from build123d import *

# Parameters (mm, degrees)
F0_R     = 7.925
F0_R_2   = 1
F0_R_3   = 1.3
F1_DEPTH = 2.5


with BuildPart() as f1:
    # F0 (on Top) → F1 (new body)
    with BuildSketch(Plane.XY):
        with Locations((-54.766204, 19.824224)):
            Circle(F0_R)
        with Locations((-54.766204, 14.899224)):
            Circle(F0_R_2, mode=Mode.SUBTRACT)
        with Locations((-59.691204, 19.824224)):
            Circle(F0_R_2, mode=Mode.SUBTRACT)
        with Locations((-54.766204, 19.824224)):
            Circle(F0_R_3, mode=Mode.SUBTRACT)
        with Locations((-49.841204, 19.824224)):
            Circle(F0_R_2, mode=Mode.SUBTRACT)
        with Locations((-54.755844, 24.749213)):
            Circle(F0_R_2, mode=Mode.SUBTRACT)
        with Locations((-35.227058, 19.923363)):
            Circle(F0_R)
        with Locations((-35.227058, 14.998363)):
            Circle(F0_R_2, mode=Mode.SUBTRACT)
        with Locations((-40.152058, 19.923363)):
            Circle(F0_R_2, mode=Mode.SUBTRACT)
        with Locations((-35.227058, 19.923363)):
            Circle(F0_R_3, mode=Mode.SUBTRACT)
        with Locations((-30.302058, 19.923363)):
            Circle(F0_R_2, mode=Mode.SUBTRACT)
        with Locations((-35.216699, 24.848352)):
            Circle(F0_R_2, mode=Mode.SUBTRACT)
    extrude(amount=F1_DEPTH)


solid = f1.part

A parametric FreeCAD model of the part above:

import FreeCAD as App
import Part
import Sketcher
from FreeCAD import Vector
Q = App.Units.Quantity

doc = App.newDocument("Part")
body = doc.addObject("PartDesign::Body", "Body")
body.AllowCompound = True

# Sketch on XY plane
sketch1 = body.newObject("Sketcher::SketchObject", "Sketch")
sketch1.AttachmentSupport = (doc.getObject("XY_Plane"), [""])
sketch1.MapMode = "FlatFace"
sketch1.addGeometry(Part.Circle(Vector(-54.8, 19.8, 0), Vector(0, 0, 1), 7.9), False)
sketch1.addGeometry(Part.Circle(Vector(-54.8, 14.9, 0), Vector(0, 0, 1), 1), False)
sketch1.addGeometry(Part.Circle(Vector(-59.7, 19.8, 0), Vector(0, 0, 1), 1), False)
sketch1.addGeometry(Part.Circle(Vector(-54.8, 19.8, 0), Vector(0, 0, 1), 1.3), False)
sketch1.addGeometry(Part.Circle(Vector(-49.8, 19.8, 0), Vector(0, 0, 1), 1), False)
sketch1.addGeometry(Part.Circle(Vector(-54.8, 24.7, 0), Vector(0, 0, 1), 1), False)
sketch1.addGeometry(Part.Circle(Vector(-35.2, 19.9, 0), Vector(0, 0, 1), 7.9), False)
sketch1.addGeometry(Part.Circle(Vector(-35.2, 15, 0), Vector(0, 0, 1), 1), False)
sketch1.addGeometry(Part.Circle(Vector(-40.2, 19.9, 0), Vector(0, 0, 1), 1), False)
sketch1.addGeometry(Part.Circle(Vector(-35.2, 19.9, 0), Vector(0, 0, 1), 1.3), False)
sketch1.addGeometry(Part.Circle(Vector(-30.3, 19.9, 0), Vector(0, 0, 1), 1), False)
sketch1.addGeometry(Part.Circle(Vector(-35.2, 24.8, 0), Vector(0, 0, 1), 1), False)
sketch1.addConstraint(Sketcher.Constraint("Coincident", 3, 3, 0, 3))
sketch1.addConstraint(Sketcher.Constraint("Coincident", 9, 3, 6, 3))
sketch1.addConstraint(Sketcher.Constraint("Equal", 1, 2))
sketch1.addConstraint(Sketcher.Constraint("Equal", 2, 4))
sketch1.addConstraint(Sketcher.Constraint("Equal", 4, 5))
sketch1.addConstraint(Sketcher.Constraint("Equal", 0, 6))
sketch1.addConstraint(Sketcher.Constraint("Equal", 5, 7))
sketch1.addConstraint(Sketcher.Constraint("Equal", 7, 8))
sketch1.addConstraint(Sketcher.Constraint("Equal", 3, 9))
sketch1.addConstraint(Sketcher.Constraint("Equal", 8, 10))
sketch1.addConstraint(Sketcher.Constraint("Equal", 10, 11))
sketch1.addConstraint(Sketcher.Constraint("Horizontal", 0, 3, 2, 3))
sketch1.addConstraint(Sketcher.Constraint("Horizontal", 3, 3, 4, 3))
sketch1.addConstraint(Sketcher.Constraint("Horizontal", 6, 3, 8, 3))
sketch1.addConstraint(Sketcher.Constraint("Horizontal", 9, 3, 10, 3))
sketch1.addConstraint(Sketcher.Constraint("Vertical", 0, 3, 1, 3))
sketch1.addConstraint(Sketcher.Constraint("Vertical", 6, 3, 7, 3))
sketch1.addConstraint(Sketcher.Constraint("Diameter", 1, Q("2 mm")))
sketch1.addConstraint(Sketcher.Constraint("Diameter", 3, Q("2.6 mm")))
sketch1.addConstraint(Sketcher.Constraint("Diameter", 0, Q("15.85 mm")))
sketch1.addConstraint(Sketcher.Constraint("DistanceX", 2, 3, 4, 3, Q("9.85 mm")))
sketch1.addConstraint(Sketcher.Constraint("DistanceX", 8, 3, 10, 3, Q("9.85 mm")))
sketch1.addConstraint(Sketcher.Constraint("DistanceY", 1, 3, 0, 3, Q("4.925 mm")))
sketch1.addConstraint(Sketcher.Constraint("DistanceX", 2, 3, 0, 3, Q("4.925 mm")))
sketch1.addConstraint(Sketcher.Constraint("DistanceY", 7, 3, 6, 3, Q("4.925 mm")))
sketch1.addConstraint(Sketcher.Constraint("DistanceX", 8, 3, 6, 3, Q("4.925 mm")))
sketch1.addConstraint(Sketcher.Constraint("DistanceX", 11, 3, -1, 1, Q("35.216699 mm")))
sketch1.addConstraint(Sketcher.Constraint("DistanceY", -1, 1, 11, 3, Q("24.848352 mm")))
sketch1.addConstraint(Sketcher.Constraint("DistanceX", 0, 3, 5, 3, Q("0.01036 mm")))
sketch1.addConstraint(Sketcher.Constraint("DistanceY", 0, 3, 5, 3, Q("4.924989 mm")))
sketch1.addConstraint(Sketcher.Constraint("DistanceY", 4, 3, 6, 3, Q("0.099139 mm")))
sketch1.addConstraint(Sketcher.Constraint("DistanceX", 6, 3, 11, 3, Q("0.010359 mm")))
sketch1.addConstraint(Sketcher.Constraint("DistanceY", 6, 3, 11, 3, Q("4.924989 mm")))
sketch1.addConstraint(Sketcher.Constraint("DistanceX", 0, 3, -1, 1, Q("54.766204 mm")))
pad1 = body.newObject("PartDesign::Pad", "Pad")
pad1.Profile = sketch1
pad1.Length = 2.5

doc.recompute()
